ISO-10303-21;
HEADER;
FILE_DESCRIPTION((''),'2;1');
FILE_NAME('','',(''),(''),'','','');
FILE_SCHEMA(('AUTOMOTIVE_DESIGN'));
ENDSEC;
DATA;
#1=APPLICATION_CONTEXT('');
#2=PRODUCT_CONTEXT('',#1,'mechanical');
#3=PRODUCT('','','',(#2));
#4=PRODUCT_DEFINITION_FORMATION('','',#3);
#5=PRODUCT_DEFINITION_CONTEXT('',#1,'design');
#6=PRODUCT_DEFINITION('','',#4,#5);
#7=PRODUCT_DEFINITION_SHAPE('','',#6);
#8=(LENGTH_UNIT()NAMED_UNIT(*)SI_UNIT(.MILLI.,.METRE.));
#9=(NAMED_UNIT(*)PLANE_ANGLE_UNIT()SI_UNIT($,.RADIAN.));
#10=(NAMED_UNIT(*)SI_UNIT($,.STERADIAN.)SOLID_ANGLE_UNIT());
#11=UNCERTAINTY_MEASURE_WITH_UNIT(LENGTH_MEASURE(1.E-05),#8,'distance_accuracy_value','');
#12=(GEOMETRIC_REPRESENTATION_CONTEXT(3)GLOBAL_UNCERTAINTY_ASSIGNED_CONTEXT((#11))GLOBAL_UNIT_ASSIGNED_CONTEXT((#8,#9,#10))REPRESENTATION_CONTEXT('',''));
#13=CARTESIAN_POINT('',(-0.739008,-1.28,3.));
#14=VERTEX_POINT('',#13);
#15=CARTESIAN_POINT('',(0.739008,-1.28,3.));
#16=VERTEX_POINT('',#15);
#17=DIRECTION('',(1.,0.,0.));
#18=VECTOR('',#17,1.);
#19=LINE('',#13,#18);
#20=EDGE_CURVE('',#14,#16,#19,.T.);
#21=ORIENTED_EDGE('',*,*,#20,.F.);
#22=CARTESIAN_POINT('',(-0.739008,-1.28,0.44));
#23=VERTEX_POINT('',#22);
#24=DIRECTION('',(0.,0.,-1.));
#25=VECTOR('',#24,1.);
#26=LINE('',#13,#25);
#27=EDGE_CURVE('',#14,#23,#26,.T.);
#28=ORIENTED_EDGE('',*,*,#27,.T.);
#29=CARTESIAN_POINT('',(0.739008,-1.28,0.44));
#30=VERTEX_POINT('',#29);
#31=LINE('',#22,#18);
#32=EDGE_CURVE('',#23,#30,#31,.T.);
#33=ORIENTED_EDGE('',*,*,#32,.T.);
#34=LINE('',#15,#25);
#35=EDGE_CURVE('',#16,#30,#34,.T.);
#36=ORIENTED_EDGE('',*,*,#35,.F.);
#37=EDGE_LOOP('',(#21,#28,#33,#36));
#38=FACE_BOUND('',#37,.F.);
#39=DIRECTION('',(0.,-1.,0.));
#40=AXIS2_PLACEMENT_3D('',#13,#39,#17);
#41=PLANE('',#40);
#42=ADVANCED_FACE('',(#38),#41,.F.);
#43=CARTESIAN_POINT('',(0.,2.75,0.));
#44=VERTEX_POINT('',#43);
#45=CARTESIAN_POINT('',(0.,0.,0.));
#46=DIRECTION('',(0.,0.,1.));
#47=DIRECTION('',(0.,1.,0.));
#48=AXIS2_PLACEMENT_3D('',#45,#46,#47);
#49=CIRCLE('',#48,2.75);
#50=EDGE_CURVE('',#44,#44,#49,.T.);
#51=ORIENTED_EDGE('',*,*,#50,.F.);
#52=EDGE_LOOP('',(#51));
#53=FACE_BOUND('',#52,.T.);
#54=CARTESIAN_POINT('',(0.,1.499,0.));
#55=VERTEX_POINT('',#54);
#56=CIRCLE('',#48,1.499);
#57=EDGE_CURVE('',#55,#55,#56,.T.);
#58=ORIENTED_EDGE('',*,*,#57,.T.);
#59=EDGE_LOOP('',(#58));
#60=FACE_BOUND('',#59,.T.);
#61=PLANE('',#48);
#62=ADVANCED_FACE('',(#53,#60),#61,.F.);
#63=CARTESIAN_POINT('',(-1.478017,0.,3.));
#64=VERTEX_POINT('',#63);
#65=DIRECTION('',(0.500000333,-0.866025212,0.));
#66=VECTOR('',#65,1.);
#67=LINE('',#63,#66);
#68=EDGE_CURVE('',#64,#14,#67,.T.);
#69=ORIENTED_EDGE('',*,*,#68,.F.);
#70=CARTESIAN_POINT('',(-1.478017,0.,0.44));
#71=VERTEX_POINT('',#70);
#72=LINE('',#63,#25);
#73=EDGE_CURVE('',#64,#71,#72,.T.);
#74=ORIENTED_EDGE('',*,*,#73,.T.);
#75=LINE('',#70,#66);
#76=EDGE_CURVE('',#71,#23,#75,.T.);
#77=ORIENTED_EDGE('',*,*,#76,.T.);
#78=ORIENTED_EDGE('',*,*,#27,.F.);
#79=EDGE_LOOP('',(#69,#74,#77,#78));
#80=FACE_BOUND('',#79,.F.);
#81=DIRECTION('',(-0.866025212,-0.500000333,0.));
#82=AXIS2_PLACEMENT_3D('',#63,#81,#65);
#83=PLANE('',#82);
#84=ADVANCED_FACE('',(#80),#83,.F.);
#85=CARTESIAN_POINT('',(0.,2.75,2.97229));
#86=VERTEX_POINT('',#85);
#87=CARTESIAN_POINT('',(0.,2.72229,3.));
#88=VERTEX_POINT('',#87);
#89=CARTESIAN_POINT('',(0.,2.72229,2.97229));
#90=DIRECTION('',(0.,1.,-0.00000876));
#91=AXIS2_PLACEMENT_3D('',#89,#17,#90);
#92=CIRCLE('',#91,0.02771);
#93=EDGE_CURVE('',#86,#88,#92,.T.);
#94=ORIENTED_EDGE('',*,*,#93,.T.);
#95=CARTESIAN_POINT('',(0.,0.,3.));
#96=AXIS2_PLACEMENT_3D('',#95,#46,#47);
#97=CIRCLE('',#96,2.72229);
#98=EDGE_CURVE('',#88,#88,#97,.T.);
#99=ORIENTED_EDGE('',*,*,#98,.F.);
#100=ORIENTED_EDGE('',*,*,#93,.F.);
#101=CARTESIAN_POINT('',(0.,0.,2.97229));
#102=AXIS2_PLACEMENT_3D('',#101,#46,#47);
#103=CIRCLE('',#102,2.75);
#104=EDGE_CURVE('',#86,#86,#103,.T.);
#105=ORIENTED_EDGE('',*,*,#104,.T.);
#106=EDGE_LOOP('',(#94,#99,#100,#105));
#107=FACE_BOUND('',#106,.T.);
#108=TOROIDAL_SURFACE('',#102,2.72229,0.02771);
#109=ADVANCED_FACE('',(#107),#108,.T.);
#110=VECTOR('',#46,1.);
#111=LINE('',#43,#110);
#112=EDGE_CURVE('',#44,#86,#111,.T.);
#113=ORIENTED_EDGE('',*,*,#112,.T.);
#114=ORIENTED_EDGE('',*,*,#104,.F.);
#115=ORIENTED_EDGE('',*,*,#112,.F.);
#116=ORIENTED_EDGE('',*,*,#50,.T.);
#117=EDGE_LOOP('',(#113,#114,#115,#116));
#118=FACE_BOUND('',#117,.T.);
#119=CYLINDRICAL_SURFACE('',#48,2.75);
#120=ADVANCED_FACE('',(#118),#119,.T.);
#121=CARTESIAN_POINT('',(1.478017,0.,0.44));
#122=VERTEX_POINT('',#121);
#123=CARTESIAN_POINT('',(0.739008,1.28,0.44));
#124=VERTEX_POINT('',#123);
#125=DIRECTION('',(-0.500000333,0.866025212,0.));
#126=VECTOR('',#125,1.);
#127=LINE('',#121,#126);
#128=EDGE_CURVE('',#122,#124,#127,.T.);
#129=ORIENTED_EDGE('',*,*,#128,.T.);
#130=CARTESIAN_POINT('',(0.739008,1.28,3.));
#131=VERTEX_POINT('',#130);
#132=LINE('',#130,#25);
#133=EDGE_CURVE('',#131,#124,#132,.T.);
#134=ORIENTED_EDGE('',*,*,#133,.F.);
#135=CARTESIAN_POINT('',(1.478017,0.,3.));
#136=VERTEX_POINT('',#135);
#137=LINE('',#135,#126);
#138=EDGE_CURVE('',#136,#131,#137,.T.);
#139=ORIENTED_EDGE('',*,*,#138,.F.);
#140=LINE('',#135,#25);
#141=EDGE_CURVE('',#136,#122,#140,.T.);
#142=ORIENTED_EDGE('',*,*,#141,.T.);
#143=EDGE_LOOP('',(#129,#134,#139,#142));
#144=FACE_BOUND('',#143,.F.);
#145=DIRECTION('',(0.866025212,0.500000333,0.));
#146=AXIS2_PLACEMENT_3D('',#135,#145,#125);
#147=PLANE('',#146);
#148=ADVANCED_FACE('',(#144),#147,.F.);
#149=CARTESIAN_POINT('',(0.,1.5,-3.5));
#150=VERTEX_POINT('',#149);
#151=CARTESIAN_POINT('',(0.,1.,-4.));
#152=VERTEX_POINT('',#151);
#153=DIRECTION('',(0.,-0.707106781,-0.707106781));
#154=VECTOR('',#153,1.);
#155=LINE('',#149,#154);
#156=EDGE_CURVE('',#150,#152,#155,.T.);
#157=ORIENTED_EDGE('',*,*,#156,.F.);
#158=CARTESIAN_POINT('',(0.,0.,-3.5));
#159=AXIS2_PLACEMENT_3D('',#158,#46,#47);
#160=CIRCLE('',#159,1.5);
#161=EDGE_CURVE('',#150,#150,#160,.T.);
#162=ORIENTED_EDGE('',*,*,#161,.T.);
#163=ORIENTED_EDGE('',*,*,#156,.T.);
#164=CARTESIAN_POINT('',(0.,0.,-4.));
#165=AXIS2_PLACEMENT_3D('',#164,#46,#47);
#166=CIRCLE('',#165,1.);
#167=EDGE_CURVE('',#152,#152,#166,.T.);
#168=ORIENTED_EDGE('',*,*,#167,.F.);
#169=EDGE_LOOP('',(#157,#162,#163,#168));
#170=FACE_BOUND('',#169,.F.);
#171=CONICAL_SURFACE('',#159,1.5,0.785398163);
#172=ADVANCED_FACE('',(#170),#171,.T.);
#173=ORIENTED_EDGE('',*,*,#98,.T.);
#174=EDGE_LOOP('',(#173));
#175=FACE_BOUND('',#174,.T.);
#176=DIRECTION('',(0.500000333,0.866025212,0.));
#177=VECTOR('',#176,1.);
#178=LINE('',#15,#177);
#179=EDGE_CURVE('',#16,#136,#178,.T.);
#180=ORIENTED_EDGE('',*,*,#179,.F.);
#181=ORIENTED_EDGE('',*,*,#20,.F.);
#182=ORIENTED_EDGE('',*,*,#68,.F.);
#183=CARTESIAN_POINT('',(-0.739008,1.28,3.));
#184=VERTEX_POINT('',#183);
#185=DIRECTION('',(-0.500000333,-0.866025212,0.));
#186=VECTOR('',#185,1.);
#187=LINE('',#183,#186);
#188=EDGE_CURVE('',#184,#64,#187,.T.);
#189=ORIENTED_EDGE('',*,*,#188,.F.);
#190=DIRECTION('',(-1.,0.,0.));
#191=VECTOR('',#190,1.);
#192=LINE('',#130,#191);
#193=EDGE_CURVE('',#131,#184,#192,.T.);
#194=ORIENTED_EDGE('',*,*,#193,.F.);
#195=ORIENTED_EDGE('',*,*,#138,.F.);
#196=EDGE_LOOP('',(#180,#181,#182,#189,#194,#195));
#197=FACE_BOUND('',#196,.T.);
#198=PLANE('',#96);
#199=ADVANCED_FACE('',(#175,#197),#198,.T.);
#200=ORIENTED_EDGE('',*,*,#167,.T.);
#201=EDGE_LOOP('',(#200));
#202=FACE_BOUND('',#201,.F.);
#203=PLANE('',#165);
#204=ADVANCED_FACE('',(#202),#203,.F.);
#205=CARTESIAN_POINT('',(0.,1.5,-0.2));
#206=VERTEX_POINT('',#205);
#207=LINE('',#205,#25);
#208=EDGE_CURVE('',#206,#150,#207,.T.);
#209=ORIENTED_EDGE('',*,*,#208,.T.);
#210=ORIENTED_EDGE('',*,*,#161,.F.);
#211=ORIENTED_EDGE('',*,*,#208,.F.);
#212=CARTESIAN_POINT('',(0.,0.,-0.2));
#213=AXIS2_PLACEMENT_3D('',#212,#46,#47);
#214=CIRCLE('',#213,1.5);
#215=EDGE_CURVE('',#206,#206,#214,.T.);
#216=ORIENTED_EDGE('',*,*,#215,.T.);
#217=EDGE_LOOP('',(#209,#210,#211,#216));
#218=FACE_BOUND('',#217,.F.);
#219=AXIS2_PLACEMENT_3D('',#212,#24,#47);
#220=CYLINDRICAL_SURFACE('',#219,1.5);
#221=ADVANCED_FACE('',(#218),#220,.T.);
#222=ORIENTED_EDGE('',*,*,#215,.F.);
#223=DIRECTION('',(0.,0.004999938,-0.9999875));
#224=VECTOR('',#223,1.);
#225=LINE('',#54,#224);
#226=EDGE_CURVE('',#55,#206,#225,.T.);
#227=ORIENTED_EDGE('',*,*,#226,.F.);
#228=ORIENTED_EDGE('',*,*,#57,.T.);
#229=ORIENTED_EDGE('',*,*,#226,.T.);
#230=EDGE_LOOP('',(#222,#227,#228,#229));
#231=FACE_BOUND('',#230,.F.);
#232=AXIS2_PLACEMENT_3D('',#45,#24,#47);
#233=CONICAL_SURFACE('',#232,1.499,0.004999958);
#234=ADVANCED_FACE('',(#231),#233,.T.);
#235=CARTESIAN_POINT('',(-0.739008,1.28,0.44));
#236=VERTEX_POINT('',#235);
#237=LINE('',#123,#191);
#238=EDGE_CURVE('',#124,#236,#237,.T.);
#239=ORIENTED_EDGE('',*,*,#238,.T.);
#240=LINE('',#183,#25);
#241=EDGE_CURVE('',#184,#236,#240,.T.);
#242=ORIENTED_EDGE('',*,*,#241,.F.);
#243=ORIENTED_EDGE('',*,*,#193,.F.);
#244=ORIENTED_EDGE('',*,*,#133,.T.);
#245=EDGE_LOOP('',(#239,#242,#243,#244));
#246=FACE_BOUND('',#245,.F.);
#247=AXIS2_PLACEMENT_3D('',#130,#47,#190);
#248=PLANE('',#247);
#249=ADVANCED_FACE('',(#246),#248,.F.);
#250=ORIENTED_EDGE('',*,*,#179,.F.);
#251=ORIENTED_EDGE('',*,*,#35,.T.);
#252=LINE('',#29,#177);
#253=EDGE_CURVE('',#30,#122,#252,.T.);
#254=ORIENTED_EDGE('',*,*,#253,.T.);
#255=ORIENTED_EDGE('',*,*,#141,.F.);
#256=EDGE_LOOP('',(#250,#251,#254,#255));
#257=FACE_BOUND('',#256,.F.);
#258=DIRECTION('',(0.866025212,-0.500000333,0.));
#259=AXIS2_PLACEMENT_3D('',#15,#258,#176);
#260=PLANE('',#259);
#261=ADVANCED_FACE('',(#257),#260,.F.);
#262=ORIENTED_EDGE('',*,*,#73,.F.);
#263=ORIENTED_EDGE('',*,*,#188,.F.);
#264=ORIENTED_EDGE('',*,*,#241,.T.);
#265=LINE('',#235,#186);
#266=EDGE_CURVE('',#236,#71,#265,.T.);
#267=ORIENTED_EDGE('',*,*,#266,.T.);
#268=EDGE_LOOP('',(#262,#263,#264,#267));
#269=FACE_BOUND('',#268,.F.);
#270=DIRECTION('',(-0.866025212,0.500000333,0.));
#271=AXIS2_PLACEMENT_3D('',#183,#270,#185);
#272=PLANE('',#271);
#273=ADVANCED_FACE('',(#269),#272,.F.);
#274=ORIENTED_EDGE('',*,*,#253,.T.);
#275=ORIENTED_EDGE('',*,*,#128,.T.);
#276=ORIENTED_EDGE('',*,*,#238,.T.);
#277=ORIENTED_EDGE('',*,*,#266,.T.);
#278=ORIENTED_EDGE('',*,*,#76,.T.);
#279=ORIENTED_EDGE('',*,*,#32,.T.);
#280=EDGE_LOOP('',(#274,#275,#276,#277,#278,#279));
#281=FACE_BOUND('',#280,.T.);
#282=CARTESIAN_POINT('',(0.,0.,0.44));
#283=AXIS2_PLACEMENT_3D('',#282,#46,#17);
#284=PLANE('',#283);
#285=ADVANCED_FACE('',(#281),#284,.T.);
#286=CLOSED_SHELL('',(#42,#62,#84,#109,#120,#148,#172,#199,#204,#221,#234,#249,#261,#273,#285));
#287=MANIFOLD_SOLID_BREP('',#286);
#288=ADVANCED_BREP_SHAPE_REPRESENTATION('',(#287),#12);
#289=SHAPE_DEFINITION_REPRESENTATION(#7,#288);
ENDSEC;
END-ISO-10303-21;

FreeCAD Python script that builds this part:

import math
import FreeCAD as App
import Part
import Sketcher
from FreeCAD import Vector
Q = App.Units.Quantity

doc = App.newDocument("Part")
body = doc.addObject("PartDesign::Body", "Body")

# Sketch on YZ plane
sketch1 = doc.addObject("Sketcher::SketchObject", "Sketch")
body.addObject(sketch1)
sketch1.AttachmentSupport = (doc.YZ_Plane, [""])
sketch1.MapMode = "FlatFace"
sketch1.addGeometry(Part.LineSegment(Vector(1.499, 0, 0), Vector(2.75, 0, 0)), False)
sketch1.addGeometry(Part.LineSegment(Vector(2.75, 0, 0), Vector(2.75, 2.972, 0)), False)
sketch1.addGeometry(Part.ArcOfCircle(Part.Circle(Vector(2.722, 2.972, 0), Vector(0, 0, 1), 0.028), math.radians(0), math.radians(90)), False)
sketch1.addGeometry(Part.LineSegment(Vector(2.722, 3, 0), Vector(0, 3, 0)), False)
sketch1.addGeometry(Part.LineSegment(Vector(0, 3, 0), Vector(0, -4, 0)), False)
sketch1.addGeometry(Part.LineSegment(Vector(0, -4, 0), Vector(1, -4, 0)), False)
sketch1.addGeometry(Part.LineSegment(Vector(1, -4, 0), Vector(1.5, -3.5, 0)), False)
sketch1.addGeometry(Part.LineSegment(Vector(1.5, -3.5, 0), Vector(1.5, -0.2, 0)), False)
sketch1.addGeometry(Part.LineSegment(Vector(1.5, -0.2, 0), Vector(1.499, 0, 0)), False)
sketch1.addConstraint(Sketcher.Constraint("Coincident", 0, 2, 1, 1))
sketch1.addConstraint(Sketcher.Constraint("Coincident", 1, 2, 2, 1))
sketch1.addConstraint(Sketcher.Constraint("Coincident", 2, 2, 3, 1))
sketch1.addConstraint(Sketcher.Constraint("Coincident", 3, 2, 4, 1))
sketch1.addConstraint(Sketcher.Constraint("Coincident", 4, 2, 5, 1))
sketch1.addConstraint(Sketcher.Constraint("Coincident", 5, 2, 6, 1))
sketch1.addConstraint(Sketcher.Constraint("Coincident", 6, 2, 7, 1))
sketch1.addConstraint(Sketcher.Constraint("Coincident", 7, 2, 8, 1))
sketch1.addConstraint(Sketcher.Constraint("Coincident", 8, 2, 0, 1))
sketch1.addConstraint(Sketcher.Constraint("Horizontal", 0))
sketch1.addConstraint(Sketcher.Constraint("Vertical", 1))
sketch1.addConstraint(Sketcher.Constraint("Horizontal", 3))
sketch1.addConstraint(Sketcher.Constraint("Vertical", 4))
sketch1.addConstraint(Sketcher.Constraint("Horizontal", 5))
sketch1.addConstraint(Sketcher.Constraint("Vertical", 7))
sketch1.addConstraint(Sketcher.Constraint("PointOnObject", 0, 2, -1))
sketch1.addConstraint(Sketcher.Constraint("PointOnObject", 3, 2, -2))
sketch1.addConstraint(Sketcher.Constraint("Horizontal", 2, 3, 1, 2))
sketch1.addConstraint(Sketcher.Constraint("DistanceX", 5, 1, 5, 2, 1.0))
sketch1.addConstraint(Sketcher.Constraint("DistanceY", 4, 2, 4, 1, 7.0))
sketch1.addConstraint(Sketcher.Constraint("Angle", 6, Q("45 deg")))
sketch1.addConstraint(Sketcher.Constraint("DistanceY", 7, 1, 7, 2, 3.3))
sketch1.addConstraint(Sketcher.Constraint("DistanceY", -1, 1, 2, 2, 3.0))
sketch1.addConstraint(Sketcher.Constraint("DistanceX", -1, 1, 6, 2, 1.5))
sketch1.addConstraint(Sketcher.Constraint("DistanceX", 0, 1, 0, 2, 1.251))
sketch1.addConstraint(Sketcher.Constraint("DistanceX", -1, 1, 0, 2, 2.75))
sketch1.addConstraint(Sketcher.Constraint("Radius", 2, 0.02771))
sketch1.addConstraint(Sketcher.Constraint("DistanceX", 3, 2, 3, 1, 2.72229))
revolution = doc.addObject("PartDesign::Revolution", "Revolution")
body.addObject(revolution)
revolution.Profile = sketch1
revolution.ReferenceAxis = (sketch1, ["V_Axis"])
revolution.Angle = 360

# Sketch on XY plane
sketch2 = doc.addObject("Sketcher::SketchObject", "Sketch001")
body.addObject(sketch2)
sketch2.AttachmentSupport = (doc.XY_Plane, [""])
sketch2.MapMode = "FlatFace"
sketch2.AttachmentOffset = App.Placement(Vector(0, 0, 3), App.Rotation())
sketch2.addGeometry(Part.LineSegment(Vector(1.5, 0, 0), Vector(0.7, 1.3, 0)), False)
sketch2.addGeometry(Part.LineSegment(Vector(0.7, 1.3, 0), Vector(-0.7, 1.3, 0)), False)
sketch2.addGeometry(Part.LineSegment(Vector(-0.7, 1.3, 0), Vector(-1.5, 0, 0)), False)
sketch2.addGeometry(Part.LineSegment(Vector(-1.5, 0, 0), Vector(-0.7, -1.3, 0)), False)
sketch2.addGeometry(Part.LineSegment(Vector(-0.7, -1.3, 0), Vector(0.7, -1.3, 0)), False)
sketch2.addGeometry(Part.LineSegment(Vector(0.7, -1.3, 0), Vector(1.5, 0, 0)), False)
sketch2.addConstraint(Sketcher.Constraint("Coincident", 0, 2, 1, 1))
sketch2.addConstraint(Sketcher.Constraint("Coincident", 1, 2, 2, 1))
sketch2.addConstraint(Sketcher.Constraint("Coincident", 2, 2, 3, 1))
sketch2.addConstraint(Sketcher.Constraint("Coincident", 3, 2, 4, 1))
sketch2.addConstraint(Sketcher.Constraint("Coincident", 4, 2, 5, 1))
sketch2.addConstraint(Sketcher.Constraint("Coincident", 5, 2, 0, 1))
sketch2.addConstraint(Sketcher.Constraint("Horizontal", 1))
sketch2.addConstraint(Sketcher.Constraint("Horizontal", 4))
sketch2.addConstraint(Sketcher.Constraint("Symmetric", 0, 2, 3, 2, -1, 1))
sketch2.addConstraint(Sketcher.Constraint("Symmetric", 2, 2, 5, 2, -1, 1))
sketch2.addConstraint(Sketcher.Constraint("PointOnObject", 2, 2, -1))
sketch2.addConstraint(Sketcher.Constraint("Parallel", 2, 5))
sketch2.addConstraint(Sketcher.Constraint("Vertical", 1, 2, 3, 2))
sketch2.addConstraint(Sketcher.Constraint("DistanceY", -1, 1, 0, 2, 1.28))
sketch2.addConstraint(Sketcher.Constraint("DistanceX", 1, 2, 1, 1, 1.478016))
sketch2.addConstraint(Sketcher.Constraint("DistanceX", 2, 2, 1, 2, 0.739009))
pocket1 = doc.addObject("PartDesign::Pocket", "Pocket")
body.addObject(pocket1)
pocket1.Profile = sketch2
pocket1.Length = 2.56

doc.recompute()
